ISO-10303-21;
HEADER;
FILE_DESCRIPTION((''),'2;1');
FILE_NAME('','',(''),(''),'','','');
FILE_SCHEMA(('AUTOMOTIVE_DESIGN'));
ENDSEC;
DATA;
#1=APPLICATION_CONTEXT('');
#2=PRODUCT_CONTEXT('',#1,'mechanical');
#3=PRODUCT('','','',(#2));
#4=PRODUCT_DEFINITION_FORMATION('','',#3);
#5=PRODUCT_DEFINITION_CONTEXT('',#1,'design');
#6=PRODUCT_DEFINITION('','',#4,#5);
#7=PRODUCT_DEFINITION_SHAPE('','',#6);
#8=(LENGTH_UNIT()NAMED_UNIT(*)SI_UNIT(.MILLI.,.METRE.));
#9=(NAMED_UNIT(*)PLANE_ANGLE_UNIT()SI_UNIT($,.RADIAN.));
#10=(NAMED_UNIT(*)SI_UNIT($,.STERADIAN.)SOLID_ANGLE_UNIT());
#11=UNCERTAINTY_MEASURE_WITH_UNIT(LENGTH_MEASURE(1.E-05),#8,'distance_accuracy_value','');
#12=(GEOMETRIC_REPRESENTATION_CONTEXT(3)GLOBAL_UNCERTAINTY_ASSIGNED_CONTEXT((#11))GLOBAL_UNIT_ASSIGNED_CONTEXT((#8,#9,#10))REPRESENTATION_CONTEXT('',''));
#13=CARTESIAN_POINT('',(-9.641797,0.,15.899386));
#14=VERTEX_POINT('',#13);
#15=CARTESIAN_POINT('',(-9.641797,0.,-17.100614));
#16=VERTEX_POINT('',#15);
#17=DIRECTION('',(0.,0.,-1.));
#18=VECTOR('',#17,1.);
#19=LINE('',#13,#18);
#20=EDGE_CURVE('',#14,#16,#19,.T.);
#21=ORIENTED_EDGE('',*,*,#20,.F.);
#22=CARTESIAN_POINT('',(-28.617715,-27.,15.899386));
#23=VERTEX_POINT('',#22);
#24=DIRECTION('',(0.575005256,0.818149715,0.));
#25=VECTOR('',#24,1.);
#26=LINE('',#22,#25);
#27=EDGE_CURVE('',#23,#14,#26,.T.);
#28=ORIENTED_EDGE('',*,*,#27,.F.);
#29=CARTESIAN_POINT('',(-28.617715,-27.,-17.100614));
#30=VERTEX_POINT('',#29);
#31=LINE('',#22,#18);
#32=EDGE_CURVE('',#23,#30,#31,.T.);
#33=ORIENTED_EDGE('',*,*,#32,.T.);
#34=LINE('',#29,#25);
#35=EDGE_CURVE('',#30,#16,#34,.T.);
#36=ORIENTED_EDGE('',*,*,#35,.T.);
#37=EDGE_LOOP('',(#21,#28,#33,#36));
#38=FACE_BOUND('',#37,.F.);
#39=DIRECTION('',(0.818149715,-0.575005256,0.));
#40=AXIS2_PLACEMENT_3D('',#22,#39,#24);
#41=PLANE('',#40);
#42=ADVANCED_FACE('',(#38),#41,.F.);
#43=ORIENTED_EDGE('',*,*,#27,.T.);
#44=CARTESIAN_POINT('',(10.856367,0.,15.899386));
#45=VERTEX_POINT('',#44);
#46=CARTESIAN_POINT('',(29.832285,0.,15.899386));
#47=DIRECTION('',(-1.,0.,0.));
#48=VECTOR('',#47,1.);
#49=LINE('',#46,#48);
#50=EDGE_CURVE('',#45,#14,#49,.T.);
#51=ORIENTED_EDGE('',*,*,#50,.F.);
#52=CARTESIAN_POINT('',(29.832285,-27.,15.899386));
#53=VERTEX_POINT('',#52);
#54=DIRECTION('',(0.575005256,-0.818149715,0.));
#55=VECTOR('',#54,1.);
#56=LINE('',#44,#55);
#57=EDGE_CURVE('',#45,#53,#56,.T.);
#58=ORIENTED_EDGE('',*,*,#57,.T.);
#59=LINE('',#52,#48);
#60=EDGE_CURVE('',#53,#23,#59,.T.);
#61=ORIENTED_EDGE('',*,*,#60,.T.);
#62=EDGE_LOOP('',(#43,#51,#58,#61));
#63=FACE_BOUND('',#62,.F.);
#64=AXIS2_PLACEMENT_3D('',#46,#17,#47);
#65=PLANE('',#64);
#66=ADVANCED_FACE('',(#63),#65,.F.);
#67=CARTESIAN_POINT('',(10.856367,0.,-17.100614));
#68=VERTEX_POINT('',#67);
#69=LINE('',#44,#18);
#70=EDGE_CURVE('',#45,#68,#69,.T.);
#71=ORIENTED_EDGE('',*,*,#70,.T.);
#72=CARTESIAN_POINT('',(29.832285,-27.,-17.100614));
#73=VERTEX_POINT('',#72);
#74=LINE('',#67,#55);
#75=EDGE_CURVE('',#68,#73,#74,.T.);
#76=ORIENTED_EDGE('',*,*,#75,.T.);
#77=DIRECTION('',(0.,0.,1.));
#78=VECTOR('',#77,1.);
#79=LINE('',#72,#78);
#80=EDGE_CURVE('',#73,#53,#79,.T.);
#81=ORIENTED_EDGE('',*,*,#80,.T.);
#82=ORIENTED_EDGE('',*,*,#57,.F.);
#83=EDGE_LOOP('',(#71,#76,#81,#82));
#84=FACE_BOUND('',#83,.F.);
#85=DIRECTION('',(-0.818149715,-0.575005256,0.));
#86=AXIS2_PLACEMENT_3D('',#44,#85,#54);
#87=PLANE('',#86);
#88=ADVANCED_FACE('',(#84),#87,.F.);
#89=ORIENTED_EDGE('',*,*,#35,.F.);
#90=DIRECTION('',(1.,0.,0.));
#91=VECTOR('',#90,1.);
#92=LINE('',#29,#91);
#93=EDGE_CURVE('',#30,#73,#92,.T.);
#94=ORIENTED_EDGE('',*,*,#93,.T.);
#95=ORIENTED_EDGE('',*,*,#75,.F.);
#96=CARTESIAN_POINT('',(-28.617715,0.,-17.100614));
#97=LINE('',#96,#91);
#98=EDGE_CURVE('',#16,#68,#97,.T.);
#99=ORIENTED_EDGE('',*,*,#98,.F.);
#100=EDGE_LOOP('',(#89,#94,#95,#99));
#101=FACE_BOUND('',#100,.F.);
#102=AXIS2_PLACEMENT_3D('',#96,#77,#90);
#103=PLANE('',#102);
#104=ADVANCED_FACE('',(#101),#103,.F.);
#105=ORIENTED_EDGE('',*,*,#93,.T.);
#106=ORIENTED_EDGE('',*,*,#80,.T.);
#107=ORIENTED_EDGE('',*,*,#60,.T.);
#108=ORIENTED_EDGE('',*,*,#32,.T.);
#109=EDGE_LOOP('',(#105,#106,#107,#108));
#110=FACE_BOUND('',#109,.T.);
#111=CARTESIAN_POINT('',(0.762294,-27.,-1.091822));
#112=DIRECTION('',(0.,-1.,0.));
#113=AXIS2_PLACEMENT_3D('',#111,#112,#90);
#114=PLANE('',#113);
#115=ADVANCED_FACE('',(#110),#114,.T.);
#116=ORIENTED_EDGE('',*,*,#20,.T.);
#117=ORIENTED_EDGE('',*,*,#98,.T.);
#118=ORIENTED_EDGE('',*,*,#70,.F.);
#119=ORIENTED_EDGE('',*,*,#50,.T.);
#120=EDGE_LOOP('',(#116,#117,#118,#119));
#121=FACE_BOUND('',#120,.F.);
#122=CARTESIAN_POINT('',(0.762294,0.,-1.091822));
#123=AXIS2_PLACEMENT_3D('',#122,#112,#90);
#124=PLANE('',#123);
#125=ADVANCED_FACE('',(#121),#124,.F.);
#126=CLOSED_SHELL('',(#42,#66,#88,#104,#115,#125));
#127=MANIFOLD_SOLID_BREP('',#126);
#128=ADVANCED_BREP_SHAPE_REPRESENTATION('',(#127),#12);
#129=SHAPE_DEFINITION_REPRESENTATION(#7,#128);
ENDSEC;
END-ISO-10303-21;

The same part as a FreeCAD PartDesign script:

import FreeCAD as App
import Part
import Sketcher

V = App.Vector
Q = App.Units.Quantity


def add_polygon(sketch, points):
    """Adds a closed chain of lines whose ends are joined by coincident constraints."""
    first, n = sketch.GeometryCount, len(points)
    for a, b in zip(points, points[1:] + points[:1]):
        sketch.addGeometry(Part.LineSegment(App.Vector(*a, 0), App.Vector(*b, 0)), False)
    for i in range(n):
        sketch.addConstraint(Sketcher.Constraint("Coincident", first + i, 2, first + (i + 1) % n, 1))

doc = App.newDocument("Part")
body = doc.addObject("PartDesign::Body", "Body")

sketch1 = body.newObject("Sketcher::SketchObject", "Sketch")
sketch1.AttachmentSupport = (doc.getObject("XZ_Plane"), [""])
sketch1.MapMode = "FlatFace"
add_polygon(sketch1, [(29.832285, -17.100614), (29.832285, 15.899386), (-28.617715, 15.899386), (-28.617715, -17.100614)])
sketch1.addConstraint([
    Sketcher.Constraint("Vertical", 0),
    Sketcher.Constraint("Horizontal", 1),
    Sketcher.Constraint("Vertical", 2),
    Sketcher.Constraint("Horizontal", 3),
    Sketcher.Constraint("DistanceY", 0, 1, 0, 2, 33.0),
    Sketcher.Constraint("DistanceX", 1, 2, 1, 1, 58.45),
    Sketcher.Constraint("DistanceX", -1, 1, 0, 2, 29.832285),
    Sketcher.Constraint("DistanceY", -1, 1, 0, 2, 15.899386),
])
pad1 = body.newObject("PartDesign::Pad", "Pad")
pad1.Profile = sketch1
pad1.Length = 27

sketch2 = body.newObject("Sketcher::SketchObject", "Sketch001")
sketch2.AttachmentSupport = (doc.getObject("XY_Plane"), [""])
sketch2.MapMode = "FlatFace"
sketch2.AttachmentOffset = App.Placement(V(0, 0, 15.899386), App.Rotation())
add_polygon(sketch2, [(-28.617715, 0), (-28.617715, -27), (-9.641797, 0)])
add_polygon(sketch2, [(10.856367, 0), (29.832285, -27), (29.832285, 0)])
sketch2.addConstraint([
    Sketcher.Constraint("Vertical", 0),
    Sketcher.Constraint("Horizontal", 2),
    Sketcher.Constraint("Vertical", 4),
    Sketcher.Constraint("Horizontal", 5),
    Sketcher.Constraint("PointOnObject", 1, 2, -1),
    Sketcher.Constraint("PointOnObject", 4, 2, -1),
    Sketcher.Constraint("Horizontal", 0, 2, 3, 2),
    Sketcher.Constraint("Equal", 2, 5),
    Sketcher.Constraint("DistanceY", 0, 2, 0, 1, 27.0),
    Sketcher.Constraint("Angle", 1, Q("54.9 deg")),
    Sketcher.Constraint("DistanceX", 0, 2, 3, 2, 58.45),
    Sketcher.Constraint("DistanceX", 0, 2, -1, 1, 28.617715),
])
pocket1 = body.newObject("PartDesign::Pocket", "Pocket")
pocket1.Profile = sketch2
pocket1.Length = 33

doc.recompute()
